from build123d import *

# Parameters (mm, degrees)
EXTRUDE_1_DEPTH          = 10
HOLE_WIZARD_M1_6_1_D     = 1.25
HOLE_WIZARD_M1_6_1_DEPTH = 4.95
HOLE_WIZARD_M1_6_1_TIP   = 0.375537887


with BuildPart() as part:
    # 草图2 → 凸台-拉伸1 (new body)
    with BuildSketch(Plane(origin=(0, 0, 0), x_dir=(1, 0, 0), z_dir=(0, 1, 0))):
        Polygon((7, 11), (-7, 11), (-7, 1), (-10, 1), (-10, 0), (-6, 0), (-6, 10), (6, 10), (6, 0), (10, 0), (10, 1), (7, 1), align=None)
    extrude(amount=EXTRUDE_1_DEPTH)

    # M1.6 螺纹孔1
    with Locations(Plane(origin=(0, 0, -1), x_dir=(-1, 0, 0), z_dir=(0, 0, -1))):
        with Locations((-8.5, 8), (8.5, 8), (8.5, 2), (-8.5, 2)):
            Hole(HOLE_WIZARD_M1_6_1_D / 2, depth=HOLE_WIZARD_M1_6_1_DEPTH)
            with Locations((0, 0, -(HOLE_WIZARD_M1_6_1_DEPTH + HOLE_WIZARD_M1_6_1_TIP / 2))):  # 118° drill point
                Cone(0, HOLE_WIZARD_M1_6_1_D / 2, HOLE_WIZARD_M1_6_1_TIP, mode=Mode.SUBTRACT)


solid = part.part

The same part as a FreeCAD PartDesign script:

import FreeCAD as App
import Part
import Sketcher

V = App.Vector

doc = App.newDocument("Part")
body = doc.addObject("PartDesign::Body", "Body")

sketch1 = body.newObject("Sketcher::SketchObject", "Sketch")
sketch1.AttachmentSupport = (doc.getObject("XZ_Plane"), [""])
sketch1.MapMode = "FlatFace"
sketch1.addGeometry([
    Part.LineSegment(V(7, -11, 0), V(-7, -11, 0)),
    Part.LineSegment(V(-7, -11, 0), V(-7, -1, 0)),
    Part.LineSegment(V(-7, -1, 0), V(-10, -1, 0)),
    Part.LineSegment(V(-10, -1, 0), V(-10, 0, 0)),
    Part.LineSegment(V(-10, 0, 0), V(-6, 0, 0)),
    Part.LineSegment(V(-6, 0, 0), V(-6, -10, 0)),
    Part.LineSegment(V(-6, -10, 0), V(6, -10, 0)),
    Part.LineSegment(V(6, -10, 0), V(6, 0, 0)),
    Part.LineSegment(V(6, 0, 0), V(10, 0, 0)),
    Part.LineSegment(V(10, 0, 0), V(10, -1, 0)),
    Part.LineSegment(V(10, -1, 0), V(7, -1, 0)),
    Part.LineSegment(V(7, -1, 0), V(7, -11, 0)),
], False)
sketch1.addConstraint([
    Sketcher.Constraint("Coincident", 0, 2, 1, 1),
    Sketcher.Constraint("Coincident", 1, 2, 2, 1),
    Sketcher.Constraint("Coincident", 2, 2, 3, 1),
    Sketcher.Constraint("Coincident", 3, 2, 4, 1),
    Sketcher.Constraint("Coincident", 4, 2, 5, 1),
    Sketcher.Constraint("Coincident", 5, 2, 6, 1),
    Sketcher.Constraint("Coincident", 6, 2, 7, 1),
    Sketcher.Constraint("Coincident", 7, 2, 8, 1),
    Sketcher.Constraint("Coincident", 8, 2, 9, 1),
    Sketcher.Constraint("Coincident", 9, 2, 10, 1),
    Sketcher.Constraint("Coincident", 10, 2, 11, 1),
    Sketcher.Constraint("Coincident", 11, 2, 0, 1),
    Sketcher.Constraint("Horizontal", 0),
    Sketcher.Constraint("Vertical", 1),
    Sketcher.Constraint("Horizontal", 2),
    Sketcher.Constraint("Vertical", 3),
    Sketcher.Constraint("Horizontal", 4),
    Sketcher.Constraint("Vertical", 5),
    Sketcher.Constraint("Horizontal", 6),
    Sketcher.Constraint("Vertical", 7),
    Sketcher.Constraint("Horizontal", 8),
    Sketcher.Constraint("Vertical", 9),
    Sketcher.Constraint("Horizontal", 10),
    Sketcher.Constraint("Vertical", 11),
    Sketcher.Constraint("Symmetric", 4, 2, 7, 2, -1, 1),
    Sketcher.Constraint("Symmetric", 3, 2, 8, 2, -2),
    Sketcher.Constraint("Symmetric", 1, 2, 10, 2, -2),
    Sketcher.Constraint("Equal", 1, 5),
    Sketcher.Constraint("DistanceX", 0, 2, 0, 1, 14.0),
    Sketcher.Constraint("DistanceX", 2, 2, 2, 1, 3.0),
    Sketcher.Constraint("DistanceX", 4, 1, 4, 2, 4.0),
    Sketcher.Constraint("DistanceY", 1, 1, 1, 2, 10.0),
    Sketcher.Constraint("DistanceY", 3, 1, 3, 2, 1.0),
])
pad1 = body.newObject("PartDesign::Pad", "Pad")
pad1.Profile = sketch1
pad1.Length = 10
pad1.Reversed = True

sketch2 = body.newObject("Sketcher::SketchObject", "Sketch001")
sketch2.AttachmentSupport = (doc.getObject("XY_Plane"), [""])
sketch2.MapMode = "FlatFace"
sketch2.AttachmentOffset = App.Placement(V(0, 0, -1), App.Rotation())
sketch2.addGeometry([
    Part.Circle(V(8.5, 8, 0), V(0, 0, 1), 0.6),
    Part.Circle(V(-8.5, 8, 0), V(0, 0, 1), 0.6),
    Part.Circle(V(-8.5, 2, 0), V(0, 0, 1), 0.6),
    Part.Circle(V(8.5, 2, 0), V(0, 0, 1), 0.6),
], False)
sketch2.addConstraint([
    Sketcher.Constraint("Equal", 0, 1),
    Sketcher.Constraint("Equal", 1, 2),
    Sketcher.Constraint("Equal", 2, 3),
    Sketcher.Constraint("Symmetric", 0, 3, 1, 3, -2),
    Sketcher.Constraint("Symmetric", 2, 3, 3, 3, -2),
    Sketcher.Constraint("Vertical", 1, 3, 2, 3),
    Sketcher.Constraint("Diameter", 0, 1.25),
    Sketcher.Constraint("DistanceY", -1, 1, 0, 3, 8.0),
    Sketcher.Constraint("DistanceY", -1, 1, 2, 3, 2.0),
    Sketcher.Constraint("DistanceX", 1, 3, 0, 3, 17.0),
])
doc.recompute()
hole = body.newObject("PartDesign::Hole", "Hole")
hole.Profile = sketch2
hole.ThreadType = "None"
hole.Diameter = 1.25
hole.DepthType = "Dimension"
hole.Depth = 4.95
hole.DrillPoint = "Angled"
hole.DrillPointAngle = 118
hole.Reversed = True

doc.recompute()
